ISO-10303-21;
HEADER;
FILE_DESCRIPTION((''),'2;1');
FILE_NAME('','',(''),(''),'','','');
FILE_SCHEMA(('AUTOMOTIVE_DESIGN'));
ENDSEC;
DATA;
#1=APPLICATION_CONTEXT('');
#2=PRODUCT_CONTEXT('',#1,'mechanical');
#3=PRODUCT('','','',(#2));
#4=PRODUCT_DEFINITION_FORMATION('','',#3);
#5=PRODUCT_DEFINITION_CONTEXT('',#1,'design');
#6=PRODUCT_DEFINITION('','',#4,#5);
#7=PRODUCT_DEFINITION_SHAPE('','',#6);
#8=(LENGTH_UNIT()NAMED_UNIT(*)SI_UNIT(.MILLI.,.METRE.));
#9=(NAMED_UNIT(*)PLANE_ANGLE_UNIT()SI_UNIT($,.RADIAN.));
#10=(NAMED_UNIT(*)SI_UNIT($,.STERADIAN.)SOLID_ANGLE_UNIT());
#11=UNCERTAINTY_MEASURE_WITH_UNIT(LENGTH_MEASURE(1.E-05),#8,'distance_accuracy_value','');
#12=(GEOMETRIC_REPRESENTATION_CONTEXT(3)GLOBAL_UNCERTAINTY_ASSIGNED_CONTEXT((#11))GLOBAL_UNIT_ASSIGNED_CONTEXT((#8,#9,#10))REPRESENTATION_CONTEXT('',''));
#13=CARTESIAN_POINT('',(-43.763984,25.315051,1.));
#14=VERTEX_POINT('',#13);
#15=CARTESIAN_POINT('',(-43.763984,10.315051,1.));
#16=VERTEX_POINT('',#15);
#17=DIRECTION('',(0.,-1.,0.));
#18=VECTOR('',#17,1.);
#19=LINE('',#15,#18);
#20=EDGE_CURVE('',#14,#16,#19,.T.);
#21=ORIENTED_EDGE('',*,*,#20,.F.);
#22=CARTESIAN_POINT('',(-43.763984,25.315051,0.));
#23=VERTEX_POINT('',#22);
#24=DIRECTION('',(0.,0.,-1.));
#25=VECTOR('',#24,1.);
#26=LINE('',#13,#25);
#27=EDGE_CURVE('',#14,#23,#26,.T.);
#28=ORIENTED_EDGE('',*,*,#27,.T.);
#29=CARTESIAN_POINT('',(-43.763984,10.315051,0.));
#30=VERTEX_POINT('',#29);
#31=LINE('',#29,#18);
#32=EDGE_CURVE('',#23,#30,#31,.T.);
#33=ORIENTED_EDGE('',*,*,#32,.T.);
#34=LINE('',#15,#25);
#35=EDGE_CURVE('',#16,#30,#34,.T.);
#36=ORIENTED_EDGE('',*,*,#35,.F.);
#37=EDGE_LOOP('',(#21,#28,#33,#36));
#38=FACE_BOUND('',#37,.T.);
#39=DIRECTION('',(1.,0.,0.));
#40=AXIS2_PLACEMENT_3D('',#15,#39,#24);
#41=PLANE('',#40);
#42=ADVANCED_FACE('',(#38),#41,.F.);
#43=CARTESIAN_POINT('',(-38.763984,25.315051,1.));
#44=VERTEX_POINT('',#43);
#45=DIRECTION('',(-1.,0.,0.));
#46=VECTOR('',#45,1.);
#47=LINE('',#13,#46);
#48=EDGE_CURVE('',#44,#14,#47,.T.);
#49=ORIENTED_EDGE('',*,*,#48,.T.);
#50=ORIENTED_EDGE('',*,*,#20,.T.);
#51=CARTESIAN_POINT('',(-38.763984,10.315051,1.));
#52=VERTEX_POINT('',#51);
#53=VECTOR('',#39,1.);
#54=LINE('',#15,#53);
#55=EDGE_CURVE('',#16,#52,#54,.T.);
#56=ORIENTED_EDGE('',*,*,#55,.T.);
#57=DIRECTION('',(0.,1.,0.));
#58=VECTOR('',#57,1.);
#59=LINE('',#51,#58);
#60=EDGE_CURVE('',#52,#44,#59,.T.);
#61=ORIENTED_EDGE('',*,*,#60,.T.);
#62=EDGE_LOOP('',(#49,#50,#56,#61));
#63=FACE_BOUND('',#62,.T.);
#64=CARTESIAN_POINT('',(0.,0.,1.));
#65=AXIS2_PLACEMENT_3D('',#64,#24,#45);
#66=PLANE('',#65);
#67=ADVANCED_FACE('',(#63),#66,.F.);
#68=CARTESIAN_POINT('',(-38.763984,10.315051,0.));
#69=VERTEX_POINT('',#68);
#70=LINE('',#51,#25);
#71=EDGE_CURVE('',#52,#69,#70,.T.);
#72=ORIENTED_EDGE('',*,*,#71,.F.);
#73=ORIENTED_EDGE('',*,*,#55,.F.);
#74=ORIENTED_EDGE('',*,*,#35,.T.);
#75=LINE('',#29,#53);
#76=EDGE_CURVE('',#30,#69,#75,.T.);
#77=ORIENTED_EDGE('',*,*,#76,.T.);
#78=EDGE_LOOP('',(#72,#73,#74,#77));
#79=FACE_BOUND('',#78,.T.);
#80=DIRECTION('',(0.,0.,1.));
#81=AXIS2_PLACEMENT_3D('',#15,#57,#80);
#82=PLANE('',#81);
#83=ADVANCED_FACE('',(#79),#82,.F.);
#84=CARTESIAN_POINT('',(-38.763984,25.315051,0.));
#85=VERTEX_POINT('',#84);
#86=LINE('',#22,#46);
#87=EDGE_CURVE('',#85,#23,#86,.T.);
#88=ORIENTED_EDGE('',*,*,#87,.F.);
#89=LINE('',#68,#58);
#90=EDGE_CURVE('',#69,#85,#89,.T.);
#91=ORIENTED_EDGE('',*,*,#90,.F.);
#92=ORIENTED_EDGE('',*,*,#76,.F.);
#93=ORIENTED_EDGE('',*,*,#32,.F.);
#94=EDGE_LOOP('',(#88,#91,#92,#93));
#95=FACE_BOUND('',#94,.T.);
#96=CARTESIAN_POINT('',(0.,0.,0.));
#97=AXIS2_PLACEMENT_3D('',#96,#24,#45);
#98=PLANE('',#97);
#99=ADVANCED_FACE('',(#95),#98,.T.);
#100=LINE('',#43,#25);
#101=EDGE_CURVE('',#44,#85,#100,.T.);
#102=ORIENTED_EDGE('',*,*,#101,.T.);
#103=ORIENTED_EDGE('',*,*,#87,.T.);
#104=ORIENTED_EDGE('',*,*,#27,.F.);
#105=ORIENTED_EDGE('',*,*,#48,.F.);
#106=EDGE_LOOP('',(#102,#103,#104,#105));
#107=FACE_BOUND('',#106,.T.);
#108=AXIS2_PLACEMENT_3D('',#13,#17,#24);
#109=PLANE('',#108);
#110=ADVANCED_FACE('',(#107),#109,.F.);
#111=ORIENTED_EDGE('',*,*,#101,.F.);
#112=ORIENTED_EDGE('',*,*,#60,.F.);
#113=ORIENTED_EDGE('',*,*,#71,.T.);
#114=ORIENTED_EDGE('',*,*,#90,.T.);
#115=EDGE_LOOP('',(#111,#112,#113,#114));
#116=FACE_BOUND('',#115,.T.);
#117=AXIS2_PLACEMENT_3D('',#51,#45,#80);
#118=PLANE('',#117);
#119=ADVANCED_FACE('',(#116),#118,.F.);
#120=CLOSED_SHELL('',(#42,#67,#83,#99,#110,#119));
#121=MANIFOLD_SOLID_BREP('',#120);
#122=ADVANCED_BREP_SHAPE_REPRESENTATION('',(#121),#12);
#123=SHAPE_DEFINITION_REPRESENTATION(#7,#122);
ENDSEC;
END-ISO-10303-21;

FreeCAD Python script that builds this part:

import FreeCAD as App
import Part
import Sketcher
from FreeCAD import Vector


def add_polygon(sketch, points):
    """Adds a closed chain of lines whose ends are joined by coincident constraints."""
    first, n = sketch.GeometryCount, len(points)
    for a, b in zip(points, points[1:] + points[:1]):
        sketch.addGeometry(Part.LineSegment(App.Vector(*a, 0), App.Vector(*b, 0)), False)
    for i in range(n):
        sketch.addConstraint(Sketcher.Constraint("Coincident", first + i, 2, first + (i + 1) % n, 1))

doc = App.newDocument("Part")
body = doc.addObject("PartDesign::Body", "Body")

# Sketch on XY plane
sketch1 = body.newObject("Sketcher::SketchObject", "Sketch")
sketch1.AttachmentSupport = (doc.getObject("XY_Plane"), [""])
sketch1.MapMode = "FlatFace"
add_polygon(sketch1, [(-44, 25), (-44, 10), (-39, 10), (-39, 25)])  # lines 0-3
sketch1.addConstraint(Sketcher.Constraint("Vertical", 0))
sketch1.addConstraint(Sketcher.Constraint("Horizontal", 1))
sketch1.addConstraint(Sketcher.Constraint("Vertical", 2))
sketch1.addConstraint(Sketcher.Constraint("Horizontal", 3))
sketch1.addConstraint(Sketcher.Constraint("DistanceX", 1, 1, 1, 2, 5.0))
sketch1.addConstraint(Sketcher.Constraint("DistanceY", 0, 2, 0, 1, 15.0))
sketch1.addConstraint(Sketcher.Constraint("DistanceY", -1, 1, 0, 2, 10.315051))
sketch1.addConstraint(Sketcher.Constraint("DistanceX", 0, 2, -1, 1, 43.763984))
pad1 = body.newObject("PartDesign::Pad", "Pad")
pad1.Profile = sketch1
pad1.Length = 1

doc.recompute()
